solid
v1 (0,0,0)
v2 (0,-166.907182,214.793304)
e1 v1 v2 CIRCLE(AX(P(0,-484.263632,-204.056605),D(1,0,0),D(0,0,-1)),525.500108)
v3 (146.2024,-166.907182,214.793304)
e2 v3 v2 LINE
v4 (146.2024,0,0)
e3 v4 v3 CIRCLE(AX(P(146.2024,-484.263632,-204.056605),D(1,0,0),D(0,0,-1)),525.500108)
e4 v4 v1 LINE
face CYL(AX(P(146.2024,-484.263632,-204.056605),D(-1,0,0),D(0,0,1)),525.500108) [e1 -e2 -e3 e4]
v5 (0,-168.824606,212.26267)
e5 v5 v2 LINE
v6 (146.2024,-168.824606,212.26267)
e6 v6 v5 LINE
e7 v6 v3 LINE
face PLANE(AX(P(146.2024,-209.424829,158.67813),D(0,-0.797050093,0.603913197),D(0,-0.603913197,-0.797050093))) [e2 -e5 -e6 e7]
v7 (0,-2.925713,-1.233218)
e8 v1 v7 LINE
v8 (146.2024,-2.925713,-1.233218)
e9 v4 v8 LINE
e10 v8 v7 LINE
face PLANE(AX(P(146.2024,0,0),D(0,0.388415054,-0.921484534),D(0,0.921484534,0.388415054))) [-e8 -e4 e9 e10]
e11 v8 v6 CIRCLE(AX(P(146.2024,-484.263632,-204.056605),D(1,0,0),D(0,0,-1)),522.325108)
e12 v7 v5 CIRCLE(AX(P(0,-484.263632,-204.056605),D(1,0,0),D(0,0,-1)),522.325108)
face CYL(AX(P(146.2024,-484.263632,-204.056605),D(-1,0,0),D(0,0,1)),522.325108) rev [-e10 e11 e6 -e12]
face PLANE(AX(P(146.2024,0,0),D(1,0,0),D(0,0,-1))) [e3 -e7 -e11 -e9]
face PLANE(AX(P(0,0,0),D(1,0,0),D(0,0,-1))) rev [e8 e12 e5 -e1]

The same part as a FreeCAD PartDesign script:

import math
import FreeCAD as App
import Part
import Sketcher
from FreeCAD import Vector
Q = App.Units.Quantity

doc = App.newDocument("Part")
body = doc.addObject("PartDesign::Body", "Body")

sketch1 = body.newObject("Sketcher::SketchObject", "Sketch")
sketch1.AttachmentSupport = (doc.getObject("YZ_Plane"), [""])
sketch1.MapMode = "FlatFace"
sketch1.addGeometry(Part.LineSegment(Vector(-167.865894, 213.527987, 0), Vector(-168.824606, 212.26267, 0)), False)
sketch1.addGeometry(Part.ArcOfCircle(Part.Circle(Vector(-484.263632, -204.056605, 0), Vector(0, 0, 1), 522.325108), math.radians(22.849303), math.radians(52.849323)), False)
sketch1.addGeometry(Part.LineSegment(Vector(-2.925713, -1.233218, 0), Vector(0, 0, 0)), False)
sketch1.addGeometry(Part.ArcOfCircle(Part.Circle(Vector(-484.263632, -204.056605, 0), Vector(0, 0, 1), 525.500108), math.radians(22.849343), math.radians(52.849323)), False)
sketch1.addGeometry(Part.LineSegment(Vector(-166.907182, 214.793304, 0), Vector(-167.865894, 213.527987, 0)), False)
sketch1.addConstraint(Sketcher.Constraint("Coincident", 0, 2, 1, 2))
sketch1.addConstraint(Sketcher.Constraint("Coincident", 1, 1, 2, 1))
sketch1.addConstraint(Sketcher.Constraint("Coincident", 2, 2, 3, 1))
sketch1.addConstraint(Sketcher.Constraint("Coincident", 3, 2, 4, 1))
sketch1.addConstraint(Sketcher.Constraint("Coincident", 4, 2, 0, 1))
sketch1.addConstraint(Sketcher.Constraint("Coincident", 2, 2, -1, 1))
sketch1.addConstraint(Sketcher.Constraint("Coincident", 3, 3, 1, 3))
sketch1.addConstraint(Sketcher.Constraint("Parallel", 0, 4))
sketch1.addConstraint(Sketcher.Constraint("Equal", 0, 4))
sketch1.addConstraint(Sketcher.Constraint("Distance", 0, Q("0.0625 in")))
sketch1.addConstraint(Sketcher.Constraint("Radius", 1, 522.325108))
sketch1.addConstraint(Sketcher.Constraint("DistanceX", 1, 3, -1, 1, 484.263632))
sketch1.addConstraint(Sketcher.Constraint("DistanceY", -1, 1, 0, 2, 212.26267))
sketch1.addConstraint(Sketcher.Constraint("DistanceX", 4, 2, 1, 1, 164.94018))
sketch1.addConstraint(Sketcher.Constraint("DistanceX", 4, 2, -1, 1, 167.865894))
pad1 = body.newObject("PartDesign::Pad", "Pad")
pad1.Profile = sketch1
pad1.Length = Q("5.756 in")

doc.recompute()
